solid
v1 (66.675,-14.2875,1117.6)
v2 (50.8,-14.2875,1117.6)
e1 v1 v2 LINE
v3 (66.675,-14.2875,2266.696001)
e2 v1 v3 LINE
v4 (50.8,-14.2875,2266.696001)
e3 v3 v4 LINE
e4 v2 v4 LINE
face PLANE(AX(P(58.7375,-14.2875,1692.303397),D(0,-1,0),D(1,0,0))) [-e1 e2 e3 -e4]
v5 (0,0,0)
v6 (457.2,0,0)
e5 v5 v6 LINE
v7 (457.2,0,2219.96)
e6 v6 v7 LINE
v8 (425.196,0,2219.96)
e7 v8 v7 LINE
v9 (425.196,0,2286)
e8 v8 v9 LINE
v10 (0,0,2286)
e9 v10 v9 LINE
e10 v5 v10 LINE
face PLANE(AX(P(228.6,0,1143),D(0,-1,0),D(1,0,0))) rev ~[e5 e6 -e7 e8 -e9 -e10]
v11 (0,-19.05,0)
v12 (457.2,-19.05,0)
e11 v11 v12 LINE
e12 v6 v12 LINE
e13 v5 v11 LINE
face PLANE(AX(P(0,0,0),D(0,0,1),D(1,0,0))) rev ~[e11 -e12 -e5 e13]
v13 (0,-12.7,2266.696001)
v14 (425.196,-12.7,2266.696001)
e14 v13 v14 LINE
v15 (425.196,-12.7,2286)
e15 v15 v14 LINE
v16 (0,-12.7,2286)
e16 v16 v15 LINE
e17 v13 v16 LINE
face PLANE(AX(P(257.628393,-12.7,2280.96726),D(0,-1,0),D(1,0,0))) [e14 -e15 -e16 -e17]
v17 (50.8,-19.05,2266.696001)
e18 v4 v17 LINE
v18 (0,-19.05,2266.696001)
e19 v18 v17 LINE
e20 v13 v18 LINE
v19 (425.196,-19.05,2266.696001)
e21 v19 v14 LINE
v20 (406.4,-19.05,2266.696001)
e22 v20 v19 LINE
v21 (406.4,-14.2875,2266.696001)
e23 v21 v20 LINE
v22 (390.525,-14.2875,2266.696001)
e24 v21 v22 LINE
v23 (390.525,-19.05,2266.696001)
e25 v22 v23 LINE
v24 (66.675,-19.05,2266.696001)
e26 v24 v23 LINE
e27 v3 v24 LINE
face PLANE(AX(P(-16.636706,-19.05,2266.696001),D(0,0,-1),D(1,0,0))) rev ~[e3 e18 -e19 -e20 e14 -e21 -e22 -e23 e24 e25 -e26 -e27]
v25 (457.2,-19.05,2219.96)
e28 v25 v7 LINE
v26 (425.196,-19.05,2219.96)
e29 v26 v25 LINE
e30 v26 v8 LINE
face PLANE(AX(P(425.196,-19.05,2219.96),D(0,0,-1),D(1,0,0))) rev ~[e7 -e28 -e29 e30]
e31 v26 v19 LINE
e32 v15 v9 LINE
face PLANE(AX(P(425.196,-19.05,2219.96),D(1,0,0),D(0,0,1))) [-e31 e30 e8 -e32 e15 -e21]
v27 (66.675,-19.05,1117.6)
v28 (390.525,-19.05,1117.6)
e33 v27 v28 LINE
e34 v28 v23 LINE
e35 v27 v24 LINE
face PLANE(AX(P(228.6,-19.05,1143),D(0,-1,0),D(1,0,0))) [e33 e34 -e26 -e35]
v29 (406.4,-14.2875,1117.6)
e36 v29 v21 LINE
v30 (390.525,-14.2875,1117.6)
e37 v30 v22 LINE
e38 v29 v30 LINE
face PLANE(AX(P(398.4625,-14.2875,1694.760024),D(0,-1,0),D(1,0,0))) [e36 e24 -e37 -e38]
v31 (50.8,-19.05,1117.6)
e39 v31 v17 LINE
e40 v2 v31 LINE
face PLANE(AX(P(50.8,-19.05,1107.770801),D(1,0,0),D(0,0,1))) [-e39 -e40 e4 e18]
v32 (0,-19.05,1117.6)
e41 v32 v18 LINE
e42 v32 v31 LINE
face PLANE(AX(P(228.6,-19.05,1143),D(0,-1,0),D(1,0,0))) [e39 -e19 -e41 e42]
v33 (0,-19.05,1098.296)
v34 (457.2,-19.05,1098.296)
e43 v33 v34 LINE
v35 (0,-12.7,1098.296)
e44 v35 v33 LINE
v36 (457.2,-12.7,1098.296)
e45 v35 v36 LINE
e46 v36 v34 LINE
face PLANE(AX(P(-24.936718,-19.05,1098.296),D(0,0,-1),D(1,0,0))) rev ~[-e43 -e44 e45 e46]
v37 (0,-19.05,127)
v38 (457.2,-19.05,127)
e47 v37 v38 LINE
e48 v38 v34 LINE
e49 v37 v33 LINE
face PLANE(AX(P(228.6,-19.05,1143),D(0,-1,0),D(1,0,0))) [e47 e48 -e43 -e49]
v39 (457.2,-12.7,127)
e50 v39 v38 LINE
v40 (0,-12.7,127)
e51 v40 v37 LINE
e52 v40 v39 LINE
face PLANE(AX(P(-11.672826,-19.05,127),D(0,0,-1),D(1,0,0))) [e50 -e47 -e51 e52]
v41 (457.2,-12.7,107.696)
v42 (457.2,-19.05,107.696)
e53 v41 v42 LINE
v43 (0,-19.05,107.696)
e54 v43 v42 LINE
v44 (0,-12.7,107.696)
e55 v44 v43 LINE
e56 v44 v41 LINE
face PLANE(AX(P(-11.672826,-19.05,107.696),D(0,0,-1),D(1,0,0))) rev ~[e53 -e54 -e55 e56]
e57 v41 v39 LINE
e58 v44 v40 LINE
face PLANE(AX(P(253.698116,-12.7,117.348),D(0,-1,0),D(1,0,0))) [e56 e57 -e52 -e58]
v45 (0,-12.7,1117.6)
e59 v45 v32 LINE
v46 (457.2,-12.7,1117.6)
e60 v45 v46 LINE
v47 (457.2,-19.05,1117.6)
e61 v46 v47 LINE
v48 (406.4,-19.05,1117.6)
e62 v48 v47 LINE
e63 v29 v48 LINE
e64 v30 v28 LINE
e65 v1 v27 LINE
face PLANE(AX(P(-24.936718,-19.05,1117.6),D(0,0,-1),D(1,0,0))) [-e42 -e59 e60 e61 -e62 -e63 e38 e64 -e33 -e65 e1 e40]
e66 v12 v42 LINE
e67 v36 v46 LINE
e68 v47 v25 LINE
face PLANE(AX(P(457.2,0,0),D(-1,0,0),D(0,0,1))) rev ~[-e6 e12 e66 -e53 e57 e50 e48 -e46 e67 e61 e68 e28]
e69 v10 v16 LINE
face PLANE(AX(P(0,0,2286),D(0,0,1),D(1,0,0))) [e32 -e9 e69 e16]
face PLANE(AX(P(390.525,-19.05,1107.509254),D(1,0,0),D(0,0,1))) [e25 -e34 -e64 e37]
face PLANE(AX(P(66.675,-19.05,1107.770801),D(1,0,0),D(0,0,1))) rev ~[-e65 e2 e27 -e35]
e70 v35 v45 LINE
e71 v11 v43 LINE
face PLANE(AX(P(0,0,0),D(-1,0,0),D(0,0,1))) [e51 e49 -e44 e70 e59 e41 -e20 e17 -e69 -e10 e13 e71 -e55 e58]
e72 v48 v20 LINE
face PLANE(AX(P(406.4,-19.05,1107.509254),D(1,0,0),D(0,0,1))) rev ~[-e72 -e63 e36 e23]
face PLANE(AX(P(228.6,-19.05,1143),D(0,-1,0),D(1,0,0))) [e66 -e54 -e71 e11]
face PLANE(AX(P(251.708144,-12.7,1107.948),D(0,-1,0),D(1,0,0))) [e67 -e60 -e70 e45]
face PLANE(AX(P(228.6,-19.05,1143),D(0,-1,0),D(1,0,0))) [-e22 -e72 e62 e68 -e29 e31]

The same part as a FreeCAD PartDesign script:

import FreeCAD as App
import Part
import Sketcher
from FreeCAD import Vector
Q = App.Units.Quantity

doc = App.newDocument("Part")
body = doc.addObject("PartDesign::Body", "Body")

# Sketch on XZ plane
sketch1 = body.newObject("Sketcher::SketchObject", "Sketch")
sketch1.AttachmentSupport = (doc.getObject("XZ_Plane"), [""])
sketch1.MapMode = "FlatFace"
sketch1.addGeometry([
    Part.LineSegment(Vector(0, 2286, 0), Vector(0, 0, 0)),
    Part.LineSegment(Vector(0, 0, 0), Vector(457, 0, 0)),
    Part.LineSegment(Vector(457, 0, 0), Vector(457, 2286, 0)),
    Part.LineSegment(Vector(457, 2286, 0), Vector(0, 2286, 0)),
], False)
sketch1.addConstraint([
    Sketcher.Constraint("Coincident", 0, 2, 1, 1),
    Sketcher.Constraint("Coincident", 1, 2, 2, 1),
    Sketcher.Constraint("Coincident", 2, 2, 3, 1),
    Sketcher.Constraint("Coincident", 3, 2, 0, 1),
    Sketcher.Constraint("Vertical", 0),
    Sketcher.Constraint("Horizontal", 1),
    Sketcher.Constraint("Vertical", 2),
    Sketcher.Constraint("Horizontal", 3),
    Sketcher.Constraint("Coincident", 0, 2, -1, 1),
    Sketcher.Constraint("DistanceX", 1, 1, 1, 2, Q("18 in")),
    Sketcher.Constraint("DistanceY", 0, 2, 0, 1, Q("90 in")),
])
pad1 = body.newObject("PartDesign::Pad", "Pad")
pad1.Profile = sketch1
pad1.Length = Q("0.75 in")

# Sketch on XZ plane
sketch2 = body.newObject("Sketcher::SketchObject", "Sketch001")
sketch2.AttachmentSupport = (doc.getObject("XZ_Plane"), [""])
sketch2.MapMode = "FlatFace"
sketch2.AttachmentOffset = App.Placement(Vector(0, 0, 0.75 * 25.4), App.Rotation())
sketch2.addGeometry([
    Part.LineSegment(Vector(425, 2286, 0), Vector(425, 2220, 0)),
    Part.LineSegment(Vector(425, 2220, 0), Vector(457, 2220, 0)),
    Part.LineSegment(Vector(457, 2220, 0), Vector(457, 2286, 0)),
    Part.LineSegment(Vector(457, 2286, 0), Vector(425, 2286, 0)),
], False)
sketch2.addConstraint([
    Sketcher.Constraint("Coincident", 0, 2, 1, 1),
    Sketcher.Constraint("Coincident", 1, 2, 2, 1),
    Sketcher.Constraint("Coincident", 2, 2, 3, 1),
    Sketcher.Constraint("Coincident", 3, 2, 0, 1),
    Sketcher.Constraint("Vertical", 0),
    Sketcher.Constraint("Horizontal", 1),
    Sketcher.Constraint("Vertical", 2),
    Sketcher.Constraint("Horizontal", 3),
    Sketcher.Constraint("DistanceY", 0, 2, 0, 1, Q("2.6 in")),
    Sketcher.Constraint("DistanceX", -1, 1, 1, 2, Q("18 in")),
    Sketcher.Constraint("DistanceY", -1, 1, 2, 2, Q("90 in")),
    Sketcher.Constraint("DistanceX", 1, 1, 1, 2, Q("1.26 in")),
])
pocket1 = body.newObject("PartDesign::Pocket", "Pocket")
pocket1.Profile = sketch2
pocket1.Type = "ThroughAll"

# Sketch on XZ plane
sketch3 = body.newObject("Sketcher::SketchObject", "Sketch002")
sketch3.AttachmentSupport = (doc.getObject("XZ_Plane"), [""])
sketch3.MapMode = "FlatFace"
sketch3.AttachmentOffset = App.Placement(Vector(0, 0, 0.75 * 25.4), App.Rotation())
sketch3.addGeometry([
    Part.LineSegment(Vector(-12, 127, 0), Vector(-12, 108, 0)),  # 0
    Part.LineSegment(Vector(-12, 108, 0), Vector(519, 108, 0)),  # 1
    Part.LineSegment(Vector(519, 108, 0), Vector(519, 127, 0)),  # 2
    Part.LineSegment(Vector(519, 127, 0), Vector(-12, 127, 0)),  # 3
    Part.LineSegment(Vector(-25, 1118, 0), Vector(-25, 1098, 0)),  # 4
    Part.LineSegment(Vector(-25, 1098, 0), Vector(528, 1098, 0)),  # 5
    Part.LineSegment(Vector(528, 1098, 0), Vector(528, 1118, 0)),  # 6
    Part.LineSegment(Vector(528, 1118, 0), Vector(-25, 1118, 0)),  # 7
    Part.LineSegment(Vector(-17, 2295, 0), Vector(-17, 2267, 0)),  # 8
    Part.LineSegment(Vector(-17, 2267, 0), Vector(532, 2267, 0)),  # 9
    Part.LineSegment(Vector(532, 2267, 0), Vector(532, 2295, 0)),  # 10
    Part.LineSegment(Vector(532, 2295, 0), Vector(-17, 2295, 0)),  # 11
], False)
sketch3.addConstraint([
    Sketcher.Constraint("Coincident", 0, 2, 1, 1),
    Sketcher.Constraint("Coincident", 1, 2, 2, 1),
    Sketcher.Constraint("Coincident", 2, 2, 3, 1),
    Sketcher.Constraint("Coincident", 3, 2, 0, 1),
    Sketcher.Constraint("Coincident", 4, 2, 5, 1),
    Sketcher.Constraint("Coincident", 5, 2, 6, 1),
    Sketcher.Constraint("Coincident", 6, 2, 7, 1),
    Sketcher.Constraint("Coincident", 7, 2, 4, 1),
    Sketcher.Constraint("Coincident", 8, 2, 9, 1),
    Sketcher.Constraint("Coincident", 9, 2, 10, 1),
    Sketcher.Constraint("Coincident", 10, 2, 11, 1),
    Sketcher.Constraint("Coincident", 11, 2, 8, 1),
    Sketcher.Constraint("Vertical", 0),
    Sketcher.Constraint("Horizontal", 1),
    Sketcher.Constraint("Vertical", 2),
    Sketcher.Constraint("Horizontal", 3),
    Sketcher.Constraint("Vertical", 4),
    Sketcher.Constraint("Horizontal", 5),
    Sketcher.Constraint("Vertical", 6),
    Sketcher.Constraint("Horizontal", 7),
    Sketcher.Constraint("Vertical", 8),
    Sketcher.Constraint("Horizontal", 9),
    Sketcher.Constraint("Vertical", 10),
    Sketcher.Constraint("Horizontal", 11),
    Sketcher.Constraint("Equal", 2, 4),
    Sketcher.Constraint("DistanceY", -1, 1, 2, 2, Q("5 in")),
    Sketcher.Constraint("DistanceY", -1, 1, 6, 2, Q("44 in")),
    Sketcher.Constraint("DistanceY", 4, 2, 8, 2, Q("46 in")),
    Sketcher.Constraint("DistanceY", 0, 2, 0, 1, Q("0.76 in")),
    Sketcher.Constraint("DistanceY", 8, 2, 8, 1, Q("28.542519 mm")),
    Sketcher.Constraint("DistanceX", 1, 1, 1, 2, Q("530.741885 mm")),
    Sketcher.Constraint("DistanceX", 5, 1, 5, 2, Q("553.289723 mm")),
    Sketcher.Constraint("DistanceX", 9, 1, 9, 2, Q("548.530197 mm")),
    Sketcher.Constraint("DistanceX", -1, 1, 1, 2, Q("519.069058 mm")),
    Sketcher.Constraint("DistanceX", -1, 1, 9, 2, Q("531.893491 mm")),
    Sketcher.Constraint("DistanceX", 4, 2, 3, 2, Q("13.263891 mm")),
])
pocket2 = body.newObject("PartDesign::Pocket", "Pocket001")
pocket2.Profile = sketch3
pocket2.Length = Q("0.25 in")

# Sketch on XZ plane
sketch4 = body.newObject("Sketcher::SketchObject", "Sketch003")
sketch4.AttachmentSupport = (doc.getObject("XZ_Plane"), [""])
sketch4.MapMode = "FlatFace"
sketch4.AttachmentOffset = App.Placement(Vector(0, 0, 0.75 * 25.4), App.Rotation())
sketch4.addGeometry([
    Part.LineSegment(Vector(51, 2277, 0), Vector(51, 1108, 0)),  # 0
    Part.LineSegment(Vector(51, 1108, 0), Vector(67, 1108, 0)),  # 1
    Part.LineSegment(Vector(67, 1108, 0), Vector(67, 2277, 0)),  # 2
    Part.LineSegment(Vector(67, 2277, 0), Vector(51, 2277, 0)),  # 3
    Part.LineSegment(Vector(391, 2282, 0), Vector(391, 1108, 0)),  # 4
    Part.LineSegment(Vector(391, 1108, 0), Vector(406, 1108, 0)),  # 5
    Part.LineSegment(Vector(406, 1108, 0), Vector(406, 2282, 0)),  # 6
    Part.LineSegment(Vector(406, 2282, 0), Vector(391, 2282, 0)),  # 7
], False)
sketch4.addConstraint([
    Sketcher.Constraint("Coincident", 0, 2, 1, 1),
    Sketcher.Constraint("Coincident", 1, 2, 2, 1),
    Sketcher.Constraint("Coincident", 2, 2, 3, 1),
    Sketcher.Constraint("Coincident", 3, 2, 0, 1),
    Sketcher.Constraint("Coincident", 4, 2, 5, 1),
    Sketcher.Constraint("Coincident", 5, 2, 6, 1),
    Sketcher.Constraint("Coincident", 6, 2, 7, 1),
    Sketcher.Constraint("Coincident", 7, 2, 4, 1),
    Sketcher.Constraint("Vertical", 0),
    Sketcher.Constraint("Horizontal", 1),
    Sketcher.Constraint("Vertical", 2),
    Sketcher.Constraint("Horizontal", 3),
    Sketcher.Constraint("Vertical", 4),
    Sketcher.Constraint("Horizontal", 5),
    Sketcher.Constraint("Vertical", 6),
    Sketcher.Constraint("Horizontal", 7),
    Sketcher.Constraint("Equal", 3, 5),
    Sketcher.Constraint("DistanceX", -1, 1, 0, 2, Q("2 in")),
    Sketcher.Constraint("DistanceX", -1, 1, 5, 2, Q("16 in")),
    Sketcher.Constraint("DistanceX", 1, 1, 1, 2, Q("0.625 in")),
    Sketcher.Constraint("DistanceY", 4, 2, 4, 1, Q("1174.501539 mm")),
    Sketcher.Constraint("DistanceY", -1, 1, 0, 2, Q("1107.770801 mm")),
    Sketcher.Constraint("DistanceY", 2, 2, 6, 2, Q("5.1748 mm")),
    Sketcher.Constraint("DistanceY", 0, 2, 0, 1, Q("1169.065192 mm")),
])
pocket3 = body.newObject("PartDesign::Pocket", "Pocket002")
pocket3.Profile = sketch4
pocket3.Length = Q("0.1875 in")

doc.recompute()
